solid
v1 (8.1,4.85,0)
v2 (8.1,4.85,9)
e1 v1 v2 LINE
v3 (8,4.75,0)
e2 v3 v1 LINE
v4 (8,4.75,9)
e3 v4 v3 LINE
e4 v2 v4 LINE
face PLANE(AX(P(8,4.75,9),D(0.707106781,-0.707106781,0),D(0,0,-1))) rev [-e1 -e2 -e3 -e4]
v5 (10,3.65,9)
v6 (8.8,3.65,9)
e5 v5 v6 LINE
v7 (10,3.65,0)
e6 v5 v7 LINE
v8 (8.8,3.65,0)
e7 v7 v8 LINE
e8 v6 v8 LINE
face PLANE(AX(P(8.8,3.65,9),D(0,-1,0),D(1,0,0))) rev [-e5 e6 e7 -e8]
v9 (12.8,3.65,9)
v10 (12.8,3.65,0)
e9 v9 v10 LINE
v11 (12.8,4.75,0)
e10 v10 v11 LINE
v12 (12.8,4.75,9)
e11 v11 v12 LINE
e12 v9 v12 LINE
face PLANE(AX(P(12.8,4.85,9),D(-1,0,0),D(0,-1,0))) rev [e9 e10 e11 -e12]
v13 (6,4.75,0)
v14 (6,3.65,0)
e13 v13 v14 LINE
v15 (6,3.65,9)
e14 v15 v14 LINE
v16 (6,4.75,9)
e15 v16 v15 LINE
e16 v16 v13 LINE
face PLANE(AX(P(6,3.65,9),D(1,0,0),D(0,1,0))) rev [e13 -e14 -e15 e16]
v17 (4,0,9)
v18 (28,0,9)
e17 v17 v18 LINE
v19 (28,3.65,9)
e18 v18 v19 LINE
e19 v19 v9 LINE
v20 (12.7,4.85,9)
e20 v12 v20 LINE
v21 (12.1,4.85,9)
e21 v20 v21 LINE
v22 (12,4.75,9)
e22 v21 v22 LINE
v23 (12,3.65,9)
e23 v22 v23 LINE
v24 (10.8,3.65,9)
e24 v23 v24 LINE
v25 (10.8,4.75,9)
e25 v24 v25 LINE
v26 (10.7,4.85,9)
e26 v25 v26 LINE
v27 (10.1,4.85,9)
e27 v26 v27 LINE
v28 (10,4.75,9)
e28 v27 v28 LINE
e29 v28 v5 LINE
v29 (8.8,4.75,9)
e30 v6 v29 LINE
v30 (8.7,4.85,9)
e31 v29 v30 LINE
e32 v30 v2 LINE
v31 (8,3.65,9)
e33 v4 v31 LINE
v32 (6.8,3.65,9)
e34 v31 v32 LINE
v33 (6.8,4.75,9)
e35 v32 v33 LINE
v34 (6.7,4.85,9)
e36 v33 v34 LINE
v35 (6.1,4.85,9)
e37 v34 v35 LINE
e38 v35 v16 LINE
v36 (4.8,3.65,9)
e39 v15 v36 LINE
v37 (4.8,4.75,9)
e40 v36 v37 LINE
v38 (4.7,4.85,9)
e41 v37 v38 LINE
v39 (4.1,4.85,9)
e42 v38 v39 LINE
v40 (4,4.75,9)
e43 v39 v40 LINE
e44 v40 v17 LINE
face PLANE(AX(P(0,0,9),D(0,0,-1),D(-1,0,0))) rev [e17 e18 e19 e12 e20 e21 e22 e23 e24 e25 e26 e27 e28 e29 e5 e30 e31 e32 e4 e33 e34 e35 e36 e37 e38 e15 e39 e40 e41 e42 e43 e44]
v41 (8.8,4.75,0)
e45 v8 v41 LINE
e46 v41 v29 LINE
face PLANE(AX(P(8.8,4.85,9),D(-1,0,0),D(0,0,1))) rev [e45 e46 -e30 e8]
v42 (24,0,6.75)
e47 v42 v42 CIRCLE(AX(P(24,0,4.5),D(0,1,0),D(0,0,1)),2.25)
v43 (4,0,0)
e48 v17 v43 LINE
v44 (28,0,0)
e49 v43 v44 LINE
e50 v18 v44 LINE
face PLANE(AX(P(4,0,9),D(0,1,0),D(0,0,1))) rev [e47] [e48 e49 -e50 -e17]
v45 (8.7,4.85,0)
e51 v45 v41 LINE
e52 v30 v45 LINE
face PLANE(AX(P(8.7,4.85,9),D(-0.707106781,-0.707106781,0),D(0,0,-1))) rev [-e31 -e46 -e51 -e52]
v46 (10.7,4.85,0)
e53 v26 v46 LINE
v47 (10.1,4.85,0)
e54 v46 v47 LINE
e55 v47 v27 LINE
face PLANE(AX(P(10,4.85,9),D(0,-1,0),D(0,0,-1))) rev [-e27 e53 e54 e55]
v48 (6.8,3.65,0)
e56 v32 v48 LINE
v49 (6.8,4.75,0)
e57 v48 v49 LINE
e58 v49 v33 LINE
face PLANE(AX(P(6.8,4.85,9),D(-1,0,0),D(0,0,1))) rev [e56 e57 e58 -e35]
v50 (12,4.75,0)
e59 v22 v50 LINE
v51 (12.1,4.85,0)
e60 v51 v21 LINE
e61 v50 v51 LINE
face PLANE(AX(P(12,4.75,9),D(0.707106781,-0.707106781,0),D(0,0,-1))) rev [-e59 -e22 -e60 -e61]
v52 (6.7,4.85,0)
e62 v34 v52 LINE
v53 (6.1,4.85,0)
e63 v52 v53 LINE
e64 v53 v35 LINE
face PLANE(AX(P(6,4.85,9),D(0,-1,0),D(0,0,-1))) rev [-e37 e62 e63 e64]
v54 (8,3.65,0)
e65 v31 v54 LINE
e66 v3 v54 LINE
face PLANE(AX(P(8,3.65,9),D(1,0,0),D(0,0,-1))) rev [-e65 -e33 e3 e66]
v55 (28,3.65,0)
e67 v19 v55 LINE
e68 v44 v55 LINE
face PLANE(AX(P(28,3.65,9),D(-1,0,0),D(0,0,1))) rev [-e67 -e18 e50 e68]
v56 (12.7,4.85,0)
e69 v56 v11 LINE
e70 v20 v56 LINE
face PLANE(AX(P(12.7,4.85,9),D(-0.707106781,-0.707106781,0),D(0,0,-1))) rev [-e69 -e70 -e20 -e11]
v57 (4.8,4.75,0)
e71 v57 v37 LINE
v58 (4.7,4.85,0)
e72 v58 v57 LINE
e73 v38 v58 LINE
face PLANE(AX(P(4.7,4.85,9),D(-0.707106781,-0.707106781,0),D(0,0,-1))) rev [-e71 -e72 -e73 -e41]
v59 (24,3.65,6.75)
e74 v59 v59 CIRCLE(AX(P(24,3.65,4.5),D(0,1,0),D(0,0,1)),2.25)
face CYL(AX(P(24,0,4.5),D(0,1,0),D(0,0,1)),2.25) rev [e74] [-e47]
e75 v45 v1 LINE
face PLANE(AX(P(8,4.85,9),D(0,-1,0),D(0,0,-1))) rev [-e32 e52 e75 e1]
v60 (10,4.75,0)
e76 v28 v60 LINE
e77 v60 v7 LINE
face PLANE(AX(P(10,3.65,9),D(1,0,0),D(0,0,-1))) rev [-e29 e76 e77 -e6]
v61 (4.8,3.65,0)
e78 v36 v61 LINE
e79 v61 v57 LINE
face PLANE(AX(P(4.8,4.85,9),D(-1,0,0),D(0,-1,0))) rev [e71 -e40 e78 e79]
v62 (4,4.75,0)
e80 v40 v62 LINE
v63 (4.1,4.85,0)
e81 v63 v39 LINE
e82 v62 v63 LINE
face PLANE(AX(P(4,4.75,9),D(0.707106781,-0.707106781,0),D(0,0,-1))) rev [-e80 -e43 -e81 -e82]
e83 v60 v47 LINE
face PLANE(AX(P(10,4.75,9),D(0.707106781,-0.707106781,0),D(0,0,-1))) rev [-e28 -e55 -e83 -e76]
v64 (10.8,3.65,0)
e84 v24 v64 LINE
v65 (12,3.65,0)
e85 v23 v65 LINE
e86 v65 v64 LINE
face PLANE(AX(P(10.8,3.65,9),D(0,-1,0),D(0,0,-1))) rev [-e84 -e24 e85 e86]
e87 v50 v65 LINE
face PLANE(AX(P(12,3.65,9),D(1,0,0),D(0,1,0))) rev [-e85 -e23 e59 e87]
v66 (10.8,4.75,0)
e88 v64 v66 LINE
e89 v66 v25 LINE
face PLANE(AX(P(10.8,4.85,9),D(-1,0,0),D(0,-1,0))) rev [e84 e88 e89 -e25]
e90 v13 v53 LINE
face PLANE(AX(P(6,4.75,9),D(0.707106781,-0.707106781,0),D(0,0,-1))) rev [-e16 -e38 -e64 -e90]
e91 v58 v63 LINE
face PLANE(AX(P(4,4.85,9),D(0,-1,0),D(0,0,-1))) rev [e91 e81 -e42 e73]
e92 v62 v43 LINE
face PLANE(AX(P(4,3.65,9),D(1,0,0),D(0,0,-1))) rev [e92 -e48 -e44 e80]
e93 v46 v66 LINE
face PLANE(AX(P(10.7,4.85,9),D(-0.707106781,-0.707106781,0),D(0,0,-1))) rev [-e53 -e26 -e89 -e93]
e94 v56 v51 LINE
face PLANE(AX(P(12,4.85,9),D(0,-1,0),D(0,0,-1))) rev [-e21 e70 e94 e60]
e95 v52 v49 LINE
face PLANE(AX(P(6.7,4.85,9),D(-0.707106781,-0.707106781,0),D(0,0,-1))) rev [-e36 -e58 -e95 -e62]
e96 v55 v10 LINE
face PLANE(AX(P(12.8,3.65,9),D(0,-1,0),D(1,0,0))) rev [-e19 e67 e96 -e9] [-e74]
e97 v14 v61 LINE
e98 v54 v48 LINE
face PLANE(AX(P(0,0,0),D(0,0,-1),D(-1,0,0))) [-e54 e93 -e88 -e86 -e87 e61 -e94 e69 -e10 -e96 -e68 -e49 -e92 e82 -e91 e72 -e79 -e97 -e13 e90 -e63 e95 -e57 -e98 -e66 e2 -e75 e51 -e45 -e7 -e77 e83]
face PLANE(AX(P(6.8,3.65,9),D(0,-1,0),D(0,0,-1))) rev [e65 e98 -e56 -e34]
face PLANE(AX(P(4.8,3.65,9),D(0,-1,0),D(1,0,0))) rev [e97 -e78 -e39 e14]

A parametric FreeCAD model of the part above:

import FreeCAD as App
import Part
import Sketcher

V = App.Vector


def edges_at(feature, points):
    """Names of the edges that pass closest to the given points."""
    edges = feature.Shape.Edges
    near = lambda p: min(range(len(edges)), key=lambda i: edges[i].distToShape(Part.Vertex(*p))[0])
    return sorted({f"Edge{near(p) + 1}" for p in points})


def add_polygon(sketch, points):
    """Adds a closed chain of lines whose ends are joined by coincident constraints."""
    first, n = sketch.GeometryCount, len(points)
    for a, b in zip(points, points[1:] + points[:1]):
        sketch.addGeometry(Part.LineSegment(App.Vector(*a, 0), App.Vector(*b, 0)), False)
    for i in range(n):
        sketch.addConstraint(Sketcher.Constraint("Coincident", first + i, 2, first + (i + 1) % n, 1))

doc = App.newDocument("Part")
params = doc.addObject("Spreadsheet::Sheet", "Params")
for row, (alias, value) in enumerate([
    ("sketch1_width", "24 mm"),
    ("sketch1_width2", "15.2 mm"),
    ("sketch1_width3", "0.8 mm"),
    ("sketch1_height", "3.65 mm"),
    ("pad1_length", "9 mm"),
    ("chamfer_size", "0.1 mm"),
    ("sketch2_diameter", "4.5 mm"),
], start=1):
    params.set(f"A{row}", alias)
    params.set(f"B{row}", "=" + value)
    params.setAlias(f"B{row}", alias)

body = doc.addObject("PartDesign::Body", "Body")

# Sketch on XY plane
sketch1 = doc.addObject("Sketcher::SketchObject", "Sketch")
body.addObject(sketch1)
sketch1.AttachmentSupport = (doc.XY_Plane, [""])
sketch1.MapMode = "FlatFace"
add_polygon(sketch1, [(28, 0), (28, 3.6), (12.8, 3.6), (12.8, 4.8), (12, 4.8), (12, 3.6), (10.8, 3.6), (10.8, 4.8), (10, 4.8), (10, 3.6), (8.8, 3.6), (8.8, 4.8), (8, 4.8), (8, 3.6), (6.8, 3.6), (6.8, 4.8), (6, 4.8), (6, 3.6), (4.8, 3.6), (4.8, 4.8), (4, 4.8), (4, 0)])  # lines 0-21
sketch1.addConstraint(Sketcher.Constraint("Vertical", 0))
sketch1.addConstraint(Sketcher.Constraint("Horizontal", 1))
sketch1.addConstraint(Sketcher.Constraint("Vertical", 2))
sketch1.addConstraint(Sketcher.Constraint("Horizontal", 3))
sketch1.addConstraint(Sketcher.Constraint("Vertical", 4))
sketch1.addConstraint(Sketcher.Constraint("Horizontal", 5))
sketch1.addConstraint(Sketcher.Constraint("Vertical", 6))
sketch1.addConstraint(Sketcher.Constraint("Horizontal", 7))
sketch1.addConstraint(Sketcher.Constraint("Vertical", 8))
sketch1.addConstraint(Sketcher.Constraint("Horizontal", 9))
sketch1.addConstraint(Sketcher.Constraint("Vertical", 10))
sketch1.addConstraint(Sketcher.Constraint("Horizontal", 11))
sketch1.addConstraint(Sketcher.Constraint("Vertical", 12))
sketch1.addConstraint(Sketcher.Constraint("Horizontal", 13))
sketch1.addConstraint(Sketcher.Constraint("Vertical", 14))
sketch1.addConstraint(Sketcher.Constraint("Horizontal", 15))
sketch1.addConstraint(Sketcher.Constraint("Vertical", 16))
sketch1.addConstraint(Sketcher.Constraint("Horizontal", 17))
sketch1.addConstraint(Sketcher.Constraint("Vertical", 18))
sketch1.addConstraint(Sketcher.Constraint("Horizontal", 19))
sketch1.addConstraint(Sketcher.Constraint("Vertical", 20))
sketch1.addConstraint(Sketcher.Constraint("Horizontal", 21))
sketch1.addConstraint(Sketcher.Constraint("PointOnObject", 20, 2, -1))
sketch1.addConstraint(Sketcher.Constraint("Horizontal", 1, 2, 4, 2))
sketch1.addConstraint(Sketcher.Constraint("Horizontal", 3, 2, 6, 2))
sketch1.addConstraint(Sketcher.Constraint("Horizontal", 5, 2, 8, 2))
sketch1.addConstraint(Sketcher.Constraint("Horizontal", 7, 2, 10, 2))
sketch1.addConstraint(Sketcher.Constraint("Horizontal", 9, 2, 12, 2))
sketch1.addConstraint(Sketcher.Constraint("Horizontal", 11, 2, 14, 2))
sketch1.addConstraint(Sketcher.Constraint("Horizontal", 13, 2, 16, 2))
sketch1.addConstraint(Sketcher.Constraint("Horizontal", 15, 2, 18, 2))
sketch1.addConstraint(Sketcher.Constraint("Equal", 3, 7))
sketch1.addConstraint(Sketcher.Constraint("Equal", 5, 9))
sketch1.addConstraint(Sketcher.Constraint("Equal", 7, 11))
sketch1.addConstraint(Sketcher.Constraint("Equal", 9, 13))
sketch1.addConstraint(Sketcher.Constraint("Equal", 11, 15))
sketch1.addConstraint(Sketcher.Constraint("Equal", 13, 17))
sketch1.addConstraint(Sketcher.Constraint("Equal", 15, 19))
sketch1.addConstraint(Sketcher.Constraint("Equal", 17, 2))
sketch1.addConstraint(Sketcher.Constraint("DistanceX", 21, 1, 21, 2, 24.0))
sketch1.addConstraint(Sketcher.Constraint("DistanceX", 1, 2, 1, 1, 15.2))
sketch1.addConstraint(Sketcher.Constraint("DistanceX", 3, 2, 3, 1, 0.8))
sketch1.addConstraint(Sketcher.Constraint("DistanceX", -1, 1, 0, 2, 28.0))
sketch1.addConstraint(Sketcher.Constraint("DistanceY", 0, 1, 0, 2, 3.65))
sketch1.setExpression("Constraints[61]", "Params.sketch1_width")
sketch1.setExpression("Constraints[62]", "Params.sketch1_width2")
sketch1.setExpression("Constraints[63]", "Params.sketch1_width3")
sketch1.setExpression("Constraints[65]", "Params.sketch1_height")
pad1 = doc.addObject("PartDesign::Pad", "Pad")
body.addObject(pad1)
pad1.Profile = sketch1
pad1.setExpression("Length", "Params.pad1_length")
doc.recompute()

chamfer = doc.addObject("PartDesign::Chamfer", "Chamfer")
body.addObject(chamfer)
chamfer.Base = (pad1, edges_at(pad1, [
    (4, 4.85, 4.5),
    (4.8, 4.85, 4.5),
    (6, 4.85, 4.5),
    (6.8, 4.85, 4.5),
    (8, 4.85, 4.5),
    (8.8, 4.85, 4.5),
    (10, 4.85, 4.5),
    (10.8, 4.85, 4.5),
    (12, 4.85, 4.5),
    (12.8, 4.85, 4.5),
]))
chamfer.setExpression("Size", "Params.chamfer_size")

# Sketch on XZ plane
sketch2 = doc.addObject("Sketcher::SketchObject", "Sketch001")
body.addObject(sketch2)
sketch2.AttachmentSupport = (doc.XZ_Plane, [""])
sketch2.MapMode = "FlatFace"
sketch2.AttachmentOffset = App.Placement(V(0, 0, -3.65), App.Rotation())
sketch2.addGeometry(Part.Circle(V(24, 4.5, 0), V(0, 0, 1), 2.2), False)
sketch2.addConstraint(Sketcher.Constraint("Diameter", 0, 4.5))
sketch2.addConstraint(Sketcher.Constraint("DistanceX", -1, 1, 0, 3, 24.0))
sketch2.addConstraint(Sketcher.Constraint("DistanceY", -1, 1, 0, 3, 4.5))
sketch2.setExpression("Constraints[0]", "Params.sketch2_diameter")
pocket1 = doc.addObject("PartDesign::Pocket", "Pocket")
body.addObject(pocket1)
pocket1.Profile = sketch2
pocket1.Type = "ThroughAll"
pocket1.Reversed = True

doc.recompute()
